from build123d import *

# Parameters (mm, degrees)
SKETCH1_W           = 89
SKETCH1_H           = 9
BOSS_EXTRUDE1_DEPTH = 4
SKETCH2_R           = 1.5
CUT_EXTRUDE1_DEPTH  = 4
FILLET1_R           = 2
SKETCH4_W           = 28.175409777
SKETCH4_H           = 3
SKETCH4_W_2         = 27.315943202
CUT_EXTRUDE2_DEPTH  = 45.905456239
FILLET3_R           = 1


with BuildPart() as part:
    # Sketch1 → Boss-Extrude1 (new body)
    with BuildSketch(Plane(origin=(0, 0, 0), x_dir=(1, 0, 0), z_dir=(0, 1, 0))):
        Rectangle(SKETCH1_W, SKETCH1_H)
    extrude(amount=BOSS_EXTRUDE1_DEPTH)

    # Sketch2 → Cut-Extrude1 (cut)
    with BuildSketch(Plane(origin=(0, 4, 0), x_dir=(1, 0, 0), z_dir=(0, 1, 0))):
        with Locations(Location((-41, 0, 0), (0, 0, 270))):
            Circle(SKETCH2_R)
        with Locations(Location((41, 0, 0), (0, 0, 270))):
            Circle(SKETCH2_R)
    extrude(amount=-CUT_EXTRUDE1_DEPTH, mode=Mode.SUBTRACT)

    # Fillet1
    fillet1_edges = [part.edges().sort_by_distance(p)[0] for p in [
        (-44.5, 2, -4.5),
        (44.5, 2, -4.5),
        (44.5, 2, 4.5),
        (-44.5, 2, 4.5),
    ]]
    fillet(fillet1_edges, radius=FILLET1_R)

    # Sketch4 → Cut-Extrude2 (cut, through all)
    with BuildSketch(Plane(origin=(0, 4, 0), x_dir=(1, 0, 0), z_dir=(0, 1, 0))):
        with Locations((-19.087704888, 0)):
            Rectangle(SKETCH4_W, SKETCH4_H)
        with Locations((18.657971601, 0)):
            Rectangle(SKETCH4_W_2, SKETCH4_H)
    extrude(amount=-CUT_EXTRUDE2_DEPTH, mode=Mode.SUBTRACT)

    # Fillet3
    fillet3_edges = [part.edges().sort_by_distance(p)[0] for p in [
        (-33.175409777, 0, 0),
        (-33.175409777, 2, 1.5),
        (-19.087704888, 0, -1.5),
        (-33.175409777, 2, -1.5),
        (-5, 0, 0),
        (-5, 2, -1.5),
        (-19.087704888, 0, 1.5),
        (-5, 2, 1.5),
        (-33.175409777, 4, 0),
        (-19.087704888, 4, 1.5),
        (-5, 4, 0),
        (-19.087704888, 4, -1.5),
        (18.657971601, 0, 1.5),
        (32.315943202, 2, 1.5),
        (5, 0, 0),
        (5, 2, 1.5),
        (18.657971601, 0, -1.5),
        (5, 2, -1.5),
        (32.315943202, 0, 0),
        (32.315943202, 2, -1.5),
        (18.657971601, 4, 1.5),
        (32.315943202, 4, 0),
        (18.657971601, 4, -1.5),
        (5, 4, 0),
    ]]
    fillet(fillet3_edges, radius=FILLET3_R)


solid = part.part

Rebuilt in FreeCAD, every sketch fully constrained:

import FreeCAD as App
import Part
import Sketcher

V = App.Vector


def edges_at(feature, points):
    """Names of the edges that pass closest to the given points."""
    edges = feature.Shape.Edges
    near = lambda p: min(range(len(edges)), key=lambda i: edges[i].distToShape(Part.Vertex(*p))[0])
    return sorted({f"Edge{near(p) + 1}" for p in points})


def add_polygon(sketch, points):
    """Adds a closed chain of lines whose ends are joined by coincident constraints."""
    first, n = sketch.GeometryCount, len(points)
    for a, b in zip(points, points[1:] + points[:1]):
        sketch.addGeometry(Part.LineSegment(App.Vector(*a, 0), App.Vector(*b, 0)), False)
    for i in range(n):
        sketch.addConstraint(Sketcher.Constraint("Coincident", first + i, 2, first + (i + 1) % n, 1))

doc = App.newDocument("Part")
params = doc.addObject("Spreadsheet::Sheet", "Params")
for row, (alias, value) in enumerate([
    ("sketch1_width", "89 mm"),
    ("sketch1_height", "9 mm"),
    ("pad1_length", "4 mm"),
    ("sketch2_diameter", "3 mm"),
    ("pocket1_length", "4 mm"),
    ("fillet_radius", "2 mm"),
    ("sketch3_height", "3 mm"),
    ("fillet2_radius", "1 mm"),
], start=1):
    params.set(f"A{row}", alias)
    params.set(f"B{row}", "=" + value)
    params.setAlias(f"B{row}", alias)

body = doc.addObject("PartDesign::Body", "Body")

# Sketch on XZ plane
sketch1 = doc.addObject("Sketcher::SketchObject", "Sketch")
body.addObject(sketch1)
sketch1.AttachmentSupport = (doc.XZ_Plane, [""])
sketch1.MapMode = "FlatFace"
add_polygon(sketch1, [(-44, -4), (-44, 4), (44, 4), (44, -4)])  # lines 0-3
sketch1.addConstraint(Sketcher.Constraint("Vertical", 0))
sketch1.addConstraint(Sketcher.Constraint("Horizontal", 1))
sketch1.addConstraint(Sketcher.Constraint("Vertical", 2))
sketch1.addConstraint(Sketcher.Constraint("Horizontal", 3))
sketch1.addConstraint(Sketcher.Constraint("Symmetric", 0, 2, 2, 2, -1, 1))
sketch1.addConstraint(Sketcher.Constraint("DistanceX", 1, 1, 1, 2, 89.0))
sketch1.addConstraint(Sketcher.Constraint("DistanceY", 0, 1, 0, 2, 9.0))
sketch1.setExpression("Constraints[9]", "Params.sketch1_width")
sketch1.setExpression("Constraints[10]", "Params.sketch1_height")
pad1 = doc.addObject("PartDesign::Pad", "Pad")
body.addObject(pad1)
pad1.Profile = sketch1
pad1.setExpression("Length", "Params.pad1_length")
pad1.Reversed = True

# Sketch on XZ plane
sketch2 = doc.addObject("Sketcher::SketchObject", "Sketch001")
body.addObject(sketch2)
sketch2.AttachmentSupport = (doc.XZ_Plane, [""])
sketch2.MapMode = "FlatFace"
sketch2.AttachmentOffset = App.Placement(V(0, 0, -4), App.Rotation())
sketch2.addGeometry(Part.Circle(V(-41, 0, 0), V(0, 0, 1), 1.5), False)
sketch2.addGeometry(Part.Circle(V(41, 0, 0), V(0, 0, 1), 1.5), False)
sketch2.addConstraint(Sketcher.Constraint("Equal", 0, 1))
sketch2.addConstraint(Sketcher.Constraint("Symmetric", 0, 3, 1, 3, -1, 1))
sketch2.addConstraint(Sketcher.Constraint("PointOnObject", 0, 3, -1))
sketch2.addConstraint(Sketcher.Constraint("Diameter", 0, 3.0))
sketch2.addConstraint(Sketcher.Constraint("DistanceX", 0, 3, -1, 1, 41.0))
sketch2.setExpression("Constraints[3]", "Params.sketch2_diameter")
pocket1 = doc.addObject("PartDesign::Pocket", "Pocket")
body.addObject(pocket1)
pocket1.Profile = sketch2
pocket1.setExpression("Length", "Params.pocket1_length")
pocket1.Reversed = True
doc.recompute()

fillet = doc.addObject("PartDesign::Fillet", "Fillet")
body.addObject(fillet)
fillet.Base = (pocket1, edges_at(pocket1, [
    (-44.5, 2, -4.5),
    (44.5, 2, -4.5),
    (44.5, 2, 4.5),
    (-44.5, 2, 4.5),
]))
fillet.setExpression("Radius", "Params.fillet_radius")

# Sketch on XZ plane
sketch3 = doc.addObject("Sketcher::SketchObject", "Sketch002")
body.addObject(sketch3)
sketch3.AttachmentSupport = (doc.XZ_Plane, [""])
sketch3.MapMode = "FlatFace"
sketch3.AttachmentOffset = App.Placement(V(0, 0, -4), App.Rotation())
add_polygon(sketch3, [(-33.2, -1.5), (-33.2, 1.5), (-5, 1.5), (-5, -1.5)])  # lines 0-3
add_polygon(sketch3, [(5, -1.5), (5, 1.5), (32.3, 1.5), (32.3, -1.5)])  # lines 4-7
sketch3.addConstraint(Sketcher.Constraint("Vertical", 0))
sketch3.addConstraint(Sketcher.Constraint("Horizontal", 1))
sketch3.addConstraint(Sketcher.Constraint("Vertical", 2))
sketch3.addConstraint(Sketcher.Constraint("Horizontal", 3))
sketch3.addConstraint(Sketcher.Constraint("Vertical", 4))
sketch3.addConstraint(Sketcher.Constraint("Horizontal", 5))
sketch3.addConstraint(Sketcher.Constraint("Vertical", 6))
sketch3.addConstraint(Sketcher.Constraint("Horizontal", 7))
sketch3.addConstraint(Sketcher.Constraint("Symmetric", 2, 2, 4, 2, -1, 1))
sketch3.addConstraint(Sketcher.Constraint("Horizontal", 1, 2, 4, 2))
sketch3.addConstraint(Sketcher.Constraint("Horizontal", 3, 2, 6, 2))
sketch3.addConstraint(Sketcher.Constraint("DistanceY", 0, 1, 0, 2, 3.0))
sketch3.addConstraint(Sketcher.Constraint("DistanceX", 1, 2, -1, 1, 5.0))
sketch3.addConstraint(Sketcher.Constraint("DistanceX", 1, 1, 1, 2, 28.17541))
sketch3.addConstraint(Sketcher.Constraint("DistanceX", 5, 1, 5, 2, 27.315943))
sketch3.setExpression("Constraints[19]", "Params.sketch3_height")
pocket2 = doc.addObject("PartDesign::Pocket", "Pocket001")
body.addObject(pocket2)
pocket2.Profile = sketch3
pocket2.Type = "ThroughAll"
pocket2.Reversed = True
doc.recompute()

fillet2 = doc.addObject("PartDesign::Fillet", "Fillet001")
body.addObject(fillet2)
fillet2.Base = (pocket2, edges_at(pocket2, [
    (-33.175, 0, 0),
    (-33.175, 2, 1.5),
    (-19.088, 0, -1.5),
    (-33.175, 2, -1.5),
    (-5, 0, 0),
    (-5, 2, -1.5),
    (-19.088, 0, 1.5),
    (-5, 2, 1.5),
    (-33.175, 4, 0),
    (-19.088, 4, 1.5),
    (-5, 4, 0),
    (-19.088, 4, -1.5),
    (18.658, 0, 1.5),
    (32.316, 2, 1.5),
    (5, 0, 0),
    (5, 2, 1.5),
    (18.658, 0, -1.5),
    (5, 2, -1.5),
    (32.316, 0, 0),
    (32.316, 2, -1.5),
    (18.658, 4, 1.5),
    (32.316, 4, 0),
    (18.658, 4, -1.5),
    (5, 4, 0),
]))
fillet2.setExpression("Radius", "Params.fillet2_radius")

doc.recompute()
